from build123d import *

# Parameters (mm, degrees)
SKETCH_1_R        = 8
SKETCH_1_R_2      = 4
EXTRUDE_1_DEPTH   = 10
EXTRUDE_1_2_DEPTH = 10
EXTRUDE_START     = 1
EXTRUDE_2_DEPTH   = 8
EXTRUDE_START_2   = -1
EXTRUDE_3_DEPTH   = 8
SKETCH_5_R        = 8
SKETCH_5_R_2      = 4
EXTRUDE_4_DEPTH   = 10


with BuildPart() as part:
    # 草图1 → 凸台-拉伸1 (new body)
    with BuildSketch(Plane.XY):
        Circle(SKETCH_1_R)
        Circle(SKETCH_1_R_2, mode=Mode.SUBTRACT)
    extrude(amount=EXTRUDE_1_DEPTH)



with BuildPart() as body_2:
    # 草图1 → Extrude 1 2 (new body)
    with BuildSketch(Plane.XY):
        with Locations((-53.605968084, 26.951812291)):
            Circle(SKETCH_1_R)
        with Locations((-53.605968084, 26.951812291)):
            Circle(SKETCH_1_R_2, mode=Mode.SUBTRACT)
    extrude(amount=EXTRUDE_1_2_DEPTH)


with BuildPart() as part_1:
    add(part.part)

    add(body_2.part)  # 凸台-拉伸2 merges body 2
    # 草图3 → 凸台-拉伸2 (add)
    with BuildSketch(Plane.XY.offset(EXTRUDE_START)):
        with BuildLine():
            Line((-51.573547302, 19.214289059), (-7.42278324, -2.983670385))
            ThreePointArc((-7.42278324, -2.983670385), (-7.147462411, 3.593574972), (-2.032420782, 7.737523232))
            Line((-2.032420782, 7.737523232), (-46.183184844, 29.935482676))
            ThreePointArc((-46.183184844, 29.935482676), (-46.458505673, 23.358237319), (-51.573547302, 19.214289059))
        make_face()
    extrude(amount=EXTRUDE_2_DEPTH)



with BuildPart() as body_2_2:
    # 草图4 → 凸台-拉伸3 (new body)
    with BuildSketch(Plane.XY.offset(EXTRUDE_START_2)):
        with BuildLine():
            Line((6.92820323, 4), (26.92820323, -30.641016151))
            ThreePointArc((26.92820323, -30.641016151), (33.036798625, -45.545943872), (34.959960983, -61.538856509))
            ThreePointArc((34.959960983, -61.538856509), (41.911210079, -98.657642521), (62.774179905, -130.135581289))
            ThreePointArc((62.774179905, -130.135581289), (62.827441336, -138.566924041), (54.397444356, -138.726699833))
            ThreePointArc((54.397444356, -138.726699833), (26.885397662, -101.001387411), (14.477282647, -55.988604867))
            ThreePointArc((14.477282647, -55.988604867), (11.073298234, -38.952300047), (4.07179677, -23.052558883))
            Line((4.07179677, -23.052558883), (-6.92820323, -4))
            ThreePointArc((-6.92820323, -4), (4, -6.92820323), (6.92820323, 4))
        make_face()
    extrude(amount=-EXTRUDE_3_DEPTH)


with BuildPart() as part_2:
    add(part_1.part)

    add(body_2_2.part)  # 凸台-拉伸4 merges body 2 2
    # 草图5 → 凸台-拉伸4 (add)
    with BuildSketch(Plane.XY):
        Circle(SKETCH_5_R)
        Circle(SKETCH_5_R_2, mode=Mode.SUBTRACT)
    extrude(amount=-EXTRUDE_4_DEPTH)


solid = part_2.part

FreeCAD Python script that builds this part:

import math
import FreeCAD as App
import Part
import Sketcher
Q = App.Units.Quantity

doc = App.newDocument("Part")
body = doc.addObject("PartDesign::Body", "Body")

# Sketch on XY plane
sketch1 = body.newObject("Sketcher::SketchObject", "Sketch")
sketch1.AttachmentSupport = (doc.getObject("XY_Plane"), [""])
sketch1.MapMode = "FlatFace"
sketch1.addGeometry(Part.Circle(App.Vector(0, 0, 0), App.Vector(0, 0, 1), 8), False)
sketch1.addGeometry(Part.Circle(App.Vector(0, 0, 0), App.Vector(0, 0, 1), 4), False)
sketch1.addConstraint(Sketcher.Constraint("Coincident", 0, 3, -1, 1))
sketch1.addConstraint(Sketcher.Constraint("Coincident", 1, 3, -1, 1))
sketch1.addConstraint(Sketcher.Constraint("Diameter", 0, 16.0))
sketch1.addConstraint(Sketcher.Constraint("Diameter", 1, 8.0))
pad1 = body.newObject("PartDesign::Pad", "Pad")
pad1.Profile = sketch1
pad1.Length = 10
body2 = doc.addObject("PartDesign::Body", "Body001")

# Sketch on XY plane
sketch2 = body2.newObject("Sketcher::SketchObject", "Sketch001")
sketch2.AttachmentSupport = (doc.getObject("XY_Plane001"), [""])
sketch2.MapMode = "FlatFace"
sketch2.addGeometry(Part.Circle(App.Vector(-53.605968, 26.951812, 0), App.Vector(0, 0, 1), 8), False)
sketch2.addGeometry(Part.Circle(App.Vector(-53.605968, 26.951812, 0), App.Vector(0, 0, 1), 4), False)
sketch2.addConstraint(Sketcher.Constraint("Coincident", 1, 3, 0, 3))
sketch2.addConstraint(Sketcher.Constraint("Diameter", 0, 16.0))
sketch2.addConstraint(Sketcher.Constraint("Diameter", 1, 8.0))
sketch2.addConstraint(Sketcher.Constraint("DistanceX", 0, 3, -1, 1, 53.605968))
sketch2.addConstraint(Sketcher.Constraint("DistanceY", -1, 1, 0, 3, 26.951812))
pad2 = body2.newObject("PartDesign::Pad", "Pad001")
pad2.Profile = sketch2
pad2.Length = 10
body.AllowCompound = True
doc.recompute()

boolean = body.newObject("PartDesign::Boolean", "Boolean")
boolean.Type = "Fuse"
boolean.addObjects([body2])

# Sketch on XY plane
sketch3 = body.newObject("Sketcher::SketchObject", "Sketch002")
sketch3.AttachmentSupport = (doc.getObject("XY_Plane"), [""])
sketch3.MapMode = "FlatFace"
sketch3.AttachmentOffset = App.Placement(App.Vector(0, 0, 1), App.Rotation())
sketch3.addGeometry(Part.LineSegment(App.Vector(-51.573547, 19.214289, 0), App.Vector(-7.422783, -2.98367, 0)), False)
sketch3.addGeometry(Part.ArcOfCircle(Part.Circle(App.Vector(0, 0, 0), App.Vector(0, 0, 1), 8), math.radians(104.717454), math.radians(201.89821)), False)
sketch3.addGeometry(Part.LineSegment(App.Vector(-2.032421, 7.737523, 0), App.Vector(-46.183185, 29.935483, 0)), False)
sketch3.addGeometry(Part.ArcOfCircle(Part.Circle(App.Vector(-53.605968, 26.951812, 0), App.Vector(0, 0, 1), 8), math.radians(-75.282546), math.radians(21.89821)), False)
sketch3.addConstraint(Sketcher.Constraint("Coincident", 0, 2, 1, 2))
sketch3.addConstraint(Sketcher.Constraint("Coincident", 1, 1, 2, 1))
sketch3.addConstraint(Sketcher.Constraint("Coincident", 2, 2, 3, 2))
sketch3.addConstraint(Sketcher.Constraint("Coincident", 3, 1, 0, 1))
sketch3.addConstraint(Sketcher.Constraint("Coincident", 1, 3, -1, 1))
sketch3.addConstraint(Sketcher.Constraint("Equal", 1, 3))
sketch3.addConstraint(Sketcher.Constraint("Parallel", 0, 2))
sketch3.addConstraint(Sketcher.Constraint("Equal", 0, 2))
sketch3.addConstraint(Sketcher.Constraint("Radius", 1, 8.0))
sketch3.addConstraint(Sketcher.Constraint("DistanceX", 2, 2, 0, 2, 38.760402))
sketch3.addConstraint(Sketcher.Constraint("DistanceX", 3, 3, -1, 1, 53.605968))
sketch3.addConstraint(Sketcher.Constraint("DistanceX", 1, 1, -1, 1, 2.032421))
sketch3.addConstraint(Sketcher.Constraint("DistanceY", -1, 1, 3, 1, 19.214289))
pad3 = body.newObject("PartDesign::Pad", "Pad002")
pad3.Profile = sketch3
pad3.Length = 8
body3 = doc.addObject("PartDesign::Body", "Body002")

# Sketch on XY plane
sketch4 = body3.newObject("Sketcher::SketchObject", "Sketch003")
sketch4.AttachmentSupport = (doc.getObject("XY_Plane002"), [""])
sketch4.MapMode = "FlatFace"
sketch4.AttachmentOffset = App.Placement(App.Vector(0, 0, -1), App.Rotation())
sketch4.addGeometry(Part.LineSegment(App.Vector(26.928203, -30.641016, 0), App.Vector(6.928203, 4, 0)), False)
sketch4.addGeometry(Part.ArcOfCircle(Part.Circle(App.Vector(0, 0, 0), App.Vector(0, 0, 1), 8), math.radians(-150), math.radians(30)), False)
sketch4.addGeometry(Part.LineSegment(App.Vector(-6.928203, -4, 0), App.Vector(4.071797, -23.052559, 0)), False)
sketch4.addGeometry(Part.ArcOfCircle(Part.Circle(App.Vector(-65.210236, -63.052559, 0), App.Vector(0, 0, 1), 80), math.radians(5.065782), math.radians(30)), False)
sketch4.addGeometry(Part.ArcOfCircle(Part.Circle(App.Vector(143.9695, -44.50968, 0), App.Vector(0, 0, 1), 130), math.radians(-174.934218), math.radians(-133.552252)), False)
sketch4.addGeometry(Part.ArcOfCircle(Part.Circle(App.Vector(58.531539, -134.378222, 0), App.Vector(0, 0, 1), 6), math.radians(-133.552252), math.radians(45)), False)
sketch4.addGeometry(Part.ArcOfCircle(Part.Circle(App.Vector(129.949324, -62.960437, 0), App.Vector(0, 0, 1), 95), math.radians(179.142594), math.radians(225)), False)
sketch4.addGeometry(Part.ArcOfCircle(Part.Circle(App.Vector(-25.033321, -60.641016, 0), App.Vector(0, 0, 1), 60), math.radians(-0.857406), math.radians(30)), False)
sketch4.addConstraint(Sketcher.Constraint("Tangent", 0, 2, 1, 2))
sketch4.addConstraint(Sketcher.Constraint("Tangent", 1, 1, 2, 1))
sketch4.addConstraint(Sketcher.Constraint("Tangent", 2, 2, 3, 2))
sketch4.addConstraint(Sketcher.Constraint("Tangent", 3, 1, 4, 1))
sketch4.addConstraint(Sketcher.Constraint("Tangent", 4, 2, 5, 1))
sketch4.addConstraint(Sketcher.Constraint("Tangent", 5, 2, 6, 2))
sketch4.addConstraint(Sketcher.Constraint("Tangent", 6, 1, 7, 1))
sketch4.addConstraint(Sketcher.Constraint("Tangent", 7, 2, 0, 1))
sketch4.addConstraint(Sketcher.Constraint("Coincident", 1, 3, -1, 1))
sketch4.addConstraint(Sketcher.Constraint("Parallel", 0, 2))
sketch4.addConstraint(Sketcher.Constraint("Radius", 1, 8.0))
sketch4.addConstraint(Sketcher.Constraint("Radius", 3, 80.0))
sketch4.addConstraint(Sketcher.Constraint("Radius", 4, 130.0))
sketch4.addConstraint(Sketcher.Constraint("Radius", 5, 6.0))
sketch4.addConstraint(Sketcher.Constraint("Radius", 6, 95.0))
sketch4.addConstraint(Sketcher.Constraint("Radius", 7, 60.0))
sketch4.addConstraint(Sketcher.Constraint("Angle", 0, Q("120 deg")))
sketch4.addConstraint(Sketcher.Constraint("Distance", 0, 40.0))
sketch4.addConstraint(Sketcher.Constraint("Distance", 2, 22.0))
sketch4.addConstraint(Sketcher.Constraint("DistanceX", -1, 1, 4, 3, 143.9695))
sketch4.addConstraint(Sketcher.Constraint("DistanceY", 4, 2, -1, 1, 138.7267))
pad4 = body3.newObject("PartDesign::Pad", "Pad003")
pad4.Profile = sketch4
pad4.Length = 8
pad4.Reversed = True
body.AllowCompound = True
doc.recompute()

boolean2 = body.newObject("PartDesign::Boolean", "Boolean001")
boolean2.Type = "Fuse"
boolean2.addObjects([body3])

# Sketch on XY plane
sketch5 = body.newObject("Sketcher::SketchObject", "Sketch004")
sketch5.AttachmentSupport = (doc.getObject("XY_Plane"), [""])
sketch5.MapMode = "FlatFace"
sketch5.addGeometry(Part.Circle(App.Vector(0, 0, 0), App.Vector(0, 0, 1), 8), False)
sketch5.addGeometry(Part.Circle(App.Vector(0, 0, 0), App.Vector(0, 0, 1), 4), False)
sketch5.addConstraint(Sketcher.Constraint("Coincident", 0, 3, -1, 1))
sketch5.addConstraint(Sketcher.Constraint("Coincident", 1, 3, -1, 1))
sketch5.addConstraint(Sketcher.Constraint("Diameter", 0, 16.0))
sketch5.addConstraint(Sketcher.Constraint("Diameter", 1, 8.0))
pad5 = body.newObject("PartDesign::Pad", "Pad004")
pad5.Profile = sketch5
pad5.Length = 10
pad5.Reversed = True

doc.recompute()
